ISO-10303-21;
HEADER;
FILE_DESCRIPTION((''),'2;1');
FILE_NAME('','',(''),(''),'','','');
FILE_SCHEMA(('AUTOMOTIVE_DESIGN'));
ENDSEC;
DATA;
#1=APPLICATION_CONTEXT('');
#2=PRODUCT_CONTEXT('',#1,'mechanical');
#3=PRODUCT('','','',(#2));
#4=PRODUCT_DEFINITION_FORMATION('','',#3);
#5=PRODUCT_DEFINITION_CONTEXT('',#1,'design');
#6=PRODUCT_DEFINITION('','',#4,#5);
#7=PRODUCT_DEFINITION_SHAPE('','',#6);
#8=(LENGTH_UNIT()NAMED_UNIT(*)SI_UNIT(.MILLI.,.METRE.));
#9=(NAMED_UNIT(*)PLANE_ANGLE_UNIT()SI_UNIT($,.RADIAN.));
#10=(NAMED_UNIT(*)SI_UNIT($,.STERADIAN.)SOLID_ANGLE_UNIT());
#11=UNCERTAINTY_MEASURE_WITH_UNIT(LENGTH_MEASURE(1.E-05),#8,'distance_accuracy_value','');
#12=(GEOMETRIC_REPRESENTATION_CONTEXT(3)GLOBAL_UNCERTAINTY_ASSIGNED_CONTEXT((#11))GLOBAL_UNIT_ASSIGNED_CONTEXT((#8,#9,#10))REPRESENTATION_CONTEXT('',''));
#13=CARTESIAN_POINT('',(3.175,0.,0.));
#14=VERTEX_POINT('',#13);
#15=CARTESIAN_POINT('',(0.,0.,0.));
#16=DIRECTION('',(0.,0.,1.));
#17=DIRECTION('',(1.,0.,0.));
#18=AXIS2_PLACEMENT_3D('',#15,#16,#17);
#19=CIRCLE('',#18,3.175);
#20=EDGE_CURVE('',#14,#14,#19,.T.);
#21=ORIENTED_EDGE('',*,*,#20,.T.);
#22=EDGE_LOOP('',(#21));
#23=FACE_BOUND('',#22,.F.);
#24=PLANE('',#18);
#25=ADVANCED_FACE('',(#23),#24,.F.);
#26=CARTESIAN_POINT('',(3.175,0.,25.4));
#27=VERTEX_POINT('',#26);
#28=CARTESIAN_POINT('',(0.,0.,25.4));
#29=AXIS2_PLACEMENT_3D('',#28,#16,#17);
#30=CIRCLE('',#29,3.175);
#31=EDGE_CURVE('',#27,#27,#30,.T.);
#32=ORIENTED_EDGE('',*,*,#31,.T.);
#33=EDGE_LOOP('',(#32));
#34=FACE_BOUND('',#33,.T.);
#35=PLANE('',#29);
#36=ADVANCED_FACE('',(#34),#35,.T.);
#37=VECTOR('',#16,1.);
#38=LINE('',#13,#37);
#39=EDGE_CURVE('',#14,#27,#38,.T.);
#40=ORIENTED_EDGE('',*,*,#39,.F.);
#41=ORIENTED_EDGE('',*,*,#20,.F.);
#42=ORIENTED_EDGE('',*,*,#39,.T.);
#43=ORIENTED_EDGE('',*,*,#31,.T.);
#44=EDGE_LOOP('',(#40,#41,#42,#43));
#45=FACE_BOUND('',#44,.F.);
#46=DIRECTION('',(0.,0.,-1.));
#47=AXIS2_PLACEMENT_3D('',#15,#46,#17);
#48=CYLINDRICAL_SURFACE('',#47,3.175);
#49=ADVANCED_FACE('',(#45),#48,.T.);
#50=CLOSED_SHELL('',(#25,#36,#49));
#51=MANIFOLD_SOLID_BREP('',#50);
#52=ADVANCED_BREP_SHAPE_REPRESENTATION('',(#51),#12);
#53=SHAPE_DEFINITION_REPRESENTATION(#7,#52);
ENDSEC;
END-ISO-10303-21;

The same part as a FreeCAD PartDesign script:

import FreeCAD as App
import Part
import Sketcher
Q = App.Units.Quantity

doc = App.newDocument("Part")
params = doc.addObject("Spreadsheet::Sheet", "Params")
for row, (alias, value) in enumerate([
    ("sketch1_diameter", "0.25 in"),
    ("pad1_length", "1 in"),
], start=1):
    params.set(f"A{row}", alias)
    params.set(f"B{row}", "=" + value)
    params.setAlias(f"B{row}", alias)

body = doc.addObject("PartDesign::Body", "Body")

sketch1 = doc.addObject("Sketcher::SketchObject", "Sketch")
body.addObject(sketch1)
sketch1.AttachmentSupport = (doc.XY_Plane, [""])
sketch1.MapMode = "FlatFace"
sketch1.addGeometry(Part.Circle(App.Vector(0, 0, 0), App.Vector(0, 0, 1), 3.2), False)
sketch1.addConstraint(Sketcher.Constraint("Coincident", 0, 3, -1, 1))
sketch1.addConstraint(Sketcher.Constraint("Diameter", 0, Q("0.25 in")))
sketch1.setExpression("Constraints[1]", "Params.sketch1_diameter")
pad1 = doc.addObject("PartDesign::Pad", "Pad")
body.addObject(pad1)
pad1.Profile = sketch1
pad1.setExpression("Length", "Params.pad1_length")

doc.recompute()
